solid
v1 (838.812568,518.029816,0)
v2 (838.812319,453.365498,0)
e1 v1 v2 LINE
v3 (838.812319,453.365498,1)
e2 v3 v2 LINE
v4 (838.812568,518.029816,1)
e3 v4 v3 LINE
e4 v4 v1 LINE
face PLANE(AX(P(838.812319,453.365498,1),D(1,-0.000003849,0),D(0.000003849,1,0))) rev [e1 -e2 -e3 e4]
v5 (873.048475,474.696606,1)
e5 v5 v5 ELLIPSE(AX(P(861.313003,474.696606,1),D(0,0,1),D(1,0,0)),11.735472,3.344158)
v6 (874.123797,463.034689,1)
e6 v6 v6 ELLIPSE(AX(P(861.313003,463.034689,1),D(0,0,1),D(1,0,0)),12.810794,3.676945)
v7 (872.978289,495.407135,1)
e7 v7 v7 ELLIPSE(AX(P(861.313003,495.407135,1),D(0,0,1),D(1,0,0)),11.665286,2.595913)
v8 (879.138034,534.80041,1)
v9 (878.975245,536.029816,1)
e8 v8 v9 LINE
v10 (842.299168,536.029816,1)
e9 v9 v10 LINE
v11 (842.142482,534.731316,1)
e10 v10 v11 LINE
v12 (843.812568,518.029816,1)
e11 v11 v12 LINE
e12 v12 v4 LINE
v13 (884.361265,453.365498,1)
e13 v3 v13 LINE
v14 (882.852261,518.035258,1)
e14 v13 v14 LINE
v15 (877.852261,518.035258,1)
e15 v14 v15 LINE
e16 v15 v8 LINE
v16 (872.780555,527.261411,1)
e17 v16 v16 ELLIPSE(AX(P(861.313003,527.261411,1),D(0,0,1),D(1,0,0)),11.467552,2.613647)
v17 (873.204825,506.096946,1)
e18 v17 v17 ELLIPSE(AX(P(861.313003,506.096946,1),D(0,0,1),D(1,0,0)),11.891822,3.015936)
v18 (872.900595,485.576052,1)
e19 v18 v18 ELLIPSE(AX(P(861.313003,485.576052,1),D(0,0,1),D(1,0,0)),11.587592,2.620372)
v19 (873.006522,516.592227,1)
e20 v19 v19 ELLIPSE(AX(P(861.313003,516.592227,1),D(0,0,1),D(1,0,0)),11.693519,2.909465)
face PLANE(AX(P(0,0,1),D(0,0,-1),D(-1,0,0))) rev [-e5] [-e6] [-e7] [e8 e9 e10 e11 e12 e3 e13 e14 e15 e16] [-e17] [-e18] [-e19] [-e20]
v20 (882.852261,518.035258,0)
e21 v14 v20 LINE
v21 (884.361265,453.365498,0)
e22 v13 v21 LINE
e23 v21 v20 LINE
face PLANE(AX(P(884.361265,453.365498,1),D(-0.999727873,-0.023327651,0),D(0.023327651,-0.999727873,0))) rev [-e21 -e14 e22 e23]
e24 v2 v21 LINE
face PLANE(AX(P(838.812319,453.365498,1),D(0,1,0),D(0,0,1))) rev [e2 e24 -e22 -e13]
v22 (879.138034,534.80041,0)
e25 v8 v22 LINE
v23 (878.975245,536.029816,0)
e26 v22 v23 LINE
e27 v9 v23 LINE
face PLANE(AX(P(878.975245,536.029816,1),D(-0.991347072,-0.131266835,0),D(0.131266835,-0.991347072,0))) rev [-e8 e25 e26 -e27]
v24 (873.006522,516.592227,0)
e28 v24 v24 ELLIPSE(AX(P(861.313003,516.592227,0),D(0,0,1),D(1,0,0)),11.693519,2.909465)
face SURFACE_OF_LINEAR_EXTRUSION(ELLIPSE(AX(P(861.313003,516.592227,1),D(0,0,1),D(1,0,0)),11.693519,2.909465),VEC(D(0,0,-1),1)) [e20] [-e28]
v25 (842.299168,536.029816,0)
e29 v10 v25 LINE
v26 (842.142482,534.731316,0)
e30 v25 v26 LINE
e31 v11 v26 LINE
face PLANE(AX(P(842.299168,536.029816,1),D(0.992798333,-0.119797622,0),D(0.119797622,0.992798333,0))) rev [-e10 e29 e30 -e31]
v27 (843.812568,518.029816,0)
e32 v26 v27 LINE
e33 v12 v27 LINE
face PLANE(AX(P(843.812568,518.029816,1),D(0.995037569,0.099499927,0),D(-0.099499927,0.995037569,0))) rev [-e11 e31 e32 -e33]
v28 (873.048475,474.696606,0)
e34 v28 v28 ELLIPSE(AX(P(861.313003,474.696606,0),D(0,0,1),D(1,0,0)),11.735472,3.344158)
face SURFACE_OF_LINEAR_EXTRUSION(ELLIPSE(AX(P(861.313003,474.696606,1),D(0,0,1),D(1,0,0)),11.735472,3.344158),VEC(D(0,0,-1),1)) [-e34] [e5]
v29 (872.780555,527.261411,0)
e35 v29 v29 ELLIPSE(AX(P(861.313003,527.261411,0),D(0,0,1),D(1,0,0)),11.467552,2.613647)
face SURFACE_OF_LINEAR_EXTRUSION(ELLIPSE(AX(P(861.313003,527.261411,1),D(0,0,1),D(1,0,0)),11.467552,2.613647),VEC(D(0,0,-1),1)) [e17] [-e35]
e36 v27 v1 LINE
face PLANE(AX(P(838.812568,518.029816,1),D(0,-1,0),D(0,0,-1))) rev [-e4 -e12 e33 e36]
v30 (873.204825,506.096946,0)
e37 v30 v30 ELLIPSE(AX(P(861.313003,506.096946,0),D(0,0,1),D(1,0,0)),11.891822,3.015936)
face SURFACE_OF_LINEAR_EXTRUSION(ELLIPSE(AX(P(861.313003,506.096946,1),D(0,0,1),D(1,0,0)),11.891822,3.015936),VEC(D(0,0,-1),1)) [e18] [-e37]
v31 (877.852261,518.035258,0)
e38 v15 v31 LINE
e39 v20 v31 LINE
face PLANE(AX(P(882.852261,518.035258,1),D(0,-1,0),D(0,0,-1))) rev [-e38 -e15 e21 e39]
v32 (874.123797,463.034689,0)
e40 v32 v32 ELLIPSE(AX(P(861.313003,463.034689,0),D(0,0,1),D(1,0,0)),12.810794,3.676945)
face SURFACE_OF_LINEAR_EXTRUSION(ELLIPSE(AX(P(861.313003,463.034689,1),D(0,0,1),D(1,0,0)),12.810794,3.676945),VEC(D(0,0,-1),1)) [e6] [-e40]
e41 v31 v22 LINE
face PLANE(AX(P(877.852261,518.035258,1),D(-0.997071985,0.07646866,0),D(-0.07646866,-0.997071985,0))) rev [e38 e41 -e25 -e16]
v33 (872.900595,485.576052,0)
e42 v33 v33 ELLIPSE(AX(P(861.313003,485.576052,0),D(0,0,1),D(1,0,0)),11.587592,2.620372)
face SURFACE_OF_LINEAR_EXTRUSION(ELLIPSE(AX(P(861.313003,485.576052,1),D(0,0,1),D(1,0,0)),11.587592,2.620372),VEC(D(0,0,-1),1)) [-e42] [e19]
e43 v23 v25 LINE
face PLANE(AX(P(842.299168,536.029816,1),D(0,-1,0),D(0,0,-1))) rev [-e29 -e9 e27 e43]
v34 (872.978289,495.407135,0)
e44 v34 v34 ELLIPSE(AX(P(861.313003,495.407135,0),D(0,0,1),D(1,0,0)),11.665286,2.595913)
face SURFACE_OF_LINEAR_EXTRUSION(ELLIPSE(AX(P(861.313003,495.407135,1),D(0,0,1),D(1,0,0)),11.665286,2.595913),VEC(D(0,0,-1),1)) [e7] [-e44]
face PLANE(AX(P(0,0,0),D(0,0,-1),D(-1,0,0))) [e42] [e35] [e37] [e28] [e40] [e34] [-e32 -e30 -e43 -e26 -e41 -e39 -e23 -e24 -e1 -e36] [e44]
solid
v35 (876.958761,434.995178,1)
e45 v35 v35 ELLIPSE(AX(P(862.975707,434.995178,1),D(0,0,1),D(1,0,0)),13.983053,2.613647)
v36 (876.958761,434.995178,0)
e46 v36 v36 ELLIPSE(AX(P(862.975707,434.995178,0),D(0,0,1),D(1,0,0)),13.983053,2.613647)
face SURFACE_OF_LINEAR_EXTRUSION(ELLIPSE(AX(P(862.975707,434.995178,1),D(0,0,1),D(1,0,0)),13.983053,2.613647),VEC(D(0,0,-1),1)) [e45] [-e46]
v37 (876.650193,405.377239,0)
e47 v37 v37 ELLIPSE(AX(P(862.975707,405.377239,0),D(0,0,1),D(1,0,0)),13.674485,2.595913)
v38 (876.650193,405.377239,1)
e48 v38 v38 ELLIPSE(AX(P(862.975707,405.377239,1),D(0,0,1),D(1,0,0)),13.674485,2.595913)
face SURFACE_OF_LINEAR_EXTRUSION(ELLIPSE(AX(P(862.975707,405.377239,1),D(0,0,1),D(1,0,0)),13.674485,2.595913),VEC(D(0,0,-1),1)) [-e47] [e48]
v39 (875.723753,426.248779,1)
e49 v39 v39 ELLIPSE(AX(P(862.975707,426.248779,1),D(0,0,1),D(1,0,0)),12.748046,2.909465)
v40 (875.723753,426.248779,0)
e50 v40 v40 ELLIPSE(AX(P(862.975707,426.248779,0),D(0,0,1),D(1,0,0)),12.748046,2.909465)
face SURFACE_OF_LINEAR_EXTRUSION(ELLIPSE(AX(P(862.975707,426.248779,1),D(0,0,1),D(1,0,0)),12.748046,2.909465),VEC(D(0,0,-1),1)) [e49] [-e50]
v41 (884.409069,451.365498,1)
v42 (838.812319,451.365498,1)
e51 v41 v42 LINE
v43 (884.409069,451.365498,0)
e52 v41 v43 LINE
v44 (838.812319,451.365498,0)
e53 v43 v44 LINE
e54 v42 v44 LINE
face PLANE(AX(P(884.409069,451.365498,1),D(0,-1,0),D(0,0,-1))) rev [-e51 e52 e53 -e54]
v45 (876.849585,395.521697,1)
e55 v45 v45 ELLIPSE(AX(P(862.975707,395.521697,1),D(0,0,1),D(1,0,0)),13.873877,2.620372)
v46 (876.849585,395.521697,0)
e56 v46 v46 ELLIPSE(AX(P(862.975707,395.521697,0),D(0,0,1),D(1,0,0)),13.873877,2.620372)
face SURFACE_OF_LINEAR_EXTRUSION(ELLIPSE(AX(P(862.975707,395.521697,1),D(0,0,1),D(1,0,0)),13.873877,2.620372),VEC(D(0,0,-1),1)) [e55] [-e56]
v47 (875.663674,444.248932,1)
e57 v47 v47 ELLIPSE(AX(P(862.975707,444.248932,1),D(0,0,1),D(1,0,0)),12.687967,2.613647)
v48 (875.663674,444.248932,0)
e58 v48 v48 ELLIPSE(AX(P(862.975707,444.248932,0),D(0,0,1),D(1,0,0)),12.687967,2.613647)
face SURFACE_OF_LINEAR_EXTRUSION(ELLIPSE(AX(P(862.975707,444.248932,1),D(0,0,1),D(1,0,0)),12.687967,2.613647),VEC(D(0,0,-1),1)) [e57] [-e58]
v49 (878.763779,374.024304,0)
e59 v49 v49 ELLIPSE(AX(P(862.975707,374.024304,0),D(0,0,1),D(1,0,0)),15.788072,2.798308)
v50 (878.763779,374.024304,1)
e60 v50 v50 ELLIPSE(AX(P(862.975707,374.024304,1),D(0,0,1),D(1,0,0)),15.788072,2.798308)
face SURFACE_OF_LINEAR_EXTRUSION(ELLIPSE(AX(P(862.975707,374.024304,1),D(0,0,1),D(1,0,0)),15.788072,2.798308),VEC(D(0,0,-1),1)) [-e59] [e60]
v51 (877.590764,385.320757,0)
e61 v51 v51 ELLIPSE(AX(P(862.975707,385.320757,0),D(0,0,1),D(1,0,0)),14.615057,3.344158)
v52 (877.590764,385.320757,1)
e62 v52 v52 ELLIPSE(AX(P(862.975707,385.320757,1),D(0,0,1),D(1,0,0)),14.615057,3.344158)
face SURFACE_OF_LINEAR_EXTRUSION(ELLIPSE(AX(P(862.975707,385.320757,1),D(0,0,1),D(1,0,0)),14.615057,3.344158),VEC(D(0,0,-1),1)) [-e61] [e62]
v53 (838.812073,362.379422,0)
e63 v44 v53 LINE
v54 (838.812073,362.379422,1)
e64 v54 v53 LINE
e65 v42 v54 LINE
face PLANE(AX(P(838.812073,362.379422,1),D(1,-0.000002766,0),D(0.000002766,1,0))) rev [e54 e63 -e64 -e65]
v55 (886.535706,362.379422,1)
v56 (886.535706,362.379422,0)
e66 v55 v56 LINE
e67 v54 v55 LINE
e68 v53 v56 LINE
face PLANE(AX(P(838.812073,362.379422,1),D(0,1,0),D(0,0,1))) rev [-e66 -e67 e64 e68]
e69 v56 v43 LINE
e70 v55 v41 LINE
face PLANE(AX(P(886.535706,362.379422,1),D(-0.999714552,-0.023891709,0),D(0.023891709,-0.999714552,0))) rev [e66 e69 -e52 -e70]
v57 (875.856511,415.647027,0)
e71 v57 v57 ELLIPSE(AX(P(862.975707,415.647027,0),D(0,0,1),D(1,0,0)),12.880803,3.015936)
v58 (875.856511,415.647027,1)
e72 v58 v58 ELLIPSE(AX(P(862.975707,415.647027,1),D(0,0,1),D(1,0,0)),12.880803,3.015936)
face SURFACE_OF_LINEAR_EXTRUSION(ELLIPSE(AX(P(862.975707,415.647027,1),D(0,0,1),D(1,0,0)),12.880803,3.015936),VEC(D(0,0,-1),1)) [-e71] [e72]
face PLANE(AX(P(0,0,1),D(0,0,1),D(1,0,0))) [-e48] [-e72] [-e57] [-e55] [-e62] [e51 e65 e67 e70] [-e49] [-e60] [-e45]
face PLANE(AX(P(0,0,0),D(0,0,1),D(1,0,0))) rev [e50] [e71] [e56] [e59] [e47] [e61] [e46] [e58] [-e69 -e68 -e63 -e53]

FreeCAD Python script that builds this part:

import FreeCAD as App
import Part
import Sketcher

V = App.Vector
Q = App.Units.Quantity

doc = App.newDocument("Part")
body = doc.addObject("PartDesign::Body", "Body")

sketch1 = doc.addObject("Sketcher::SketchObject", "Sketch")
body.addObject(sketch1)
sketch1.AttachmentSupport = (doc.XY_Plane, [""])
sketch1.MapMode = "FlatFace"
sketch1.addGeometry(Part.LineSegment(V(838.812319, 453.365498, 0), V(884.361265, 453.365498, 0)), False)
sketch1.addGeometry(Part.LineSegment(V(884.361265, 453.365498, 0), V(882.852261, 518.035258, 0)), False)
sketch1.addGeometry(Part.LineSegment(V(882.852261, 518.035258, 0), V(877.852261, 518.035258, 0)), False)
sketch1.addGeometry(Part.LineSegment(V(877.852261, 518.035258, 0), V(879.138034, 534.80041, 0)), False)
sketch1.addGeometry(Part.LineSegment(V(879.138034, 534.80041, 0), V(878.975245, 536.029816, 0)), False)
sketch1.addGeometry(Part.LineSegment(V(878.975245, 536.029816, 0), V(842.299168, 536.029816, 0)), False)
sketch1.addGeometry(Part.LineSegment(V(842.299168, 536.029816, 0), V(842.142482, 534.731316, 0)), False)
sketch1.addGeometry(Part.LineSegment(V(842.142482, 534.731316, 0), V(843.812568, 518.029816, 0)), False)
sketch1.addGeometry(Part.LineSegment(V(843.812568, 518.029816, 0), V(838.812568, 518.029816, 0)), False)
sketch1.addGeometry(Part.LineSegment(V(838.812568, 518.029816, 0), V(838.812319, 453.365498, 0)), False)
sketch1.addGeometry(Part.Ellipse(V(874.123797, 463.034689, 0), V(861.313003, 466.711634, 0), V(861.313003, 463.034689, 0)), False)
sketch1.addGeometry(Part.Ellipse(V(873.048475, 474.696606, 0), V(861.313003, 478.040765, 0), V(861.313003, 474.696606, 0)), False)
sketch1.addGeometry(Part.Ellipse(V(872.900595, 485.576052, 0), V(861.313003, 488.196424, 0), V(861.313003, 485.576052, 0)), False)
sketch1.addGeometry(Part.Ellipse(V(872.978289, 495.407135, 0), V(861.313003, 498.003049, 0), V(861.313003, 495.407135, 0)), False)
sketch1.addGeometry(Part.Ellipse(V(873.204825, 506.096946, 0), V(861.313003, 509.112881, 0), V(861.313003, 506.096946, 0)), False)
sketch1.addGeometry(Part.Ellipse(V(873.006522, 516.592227, 0), V(861.313003, 519.501692, 0), V(861.313003, 516.592227, 0)), False)
sketch1.addGeometry(Part.Ellipse(V(872.780555, 527.261411, 0), V(861.313003, 529.875058, 0), V(861.313003, 527.261411, 0)), False)
sketch1.addConstraint(Sketcher.Constraint("Block", 10))
sketch1.addConstraint(Sketcher.Constraint("Block", 11))
sketch1.addConstraint(Sketcher.Constraint("Block", 12))
sketch1.addConstraint(Sketcher.Constraint("Block", 13))
sketch1.addConstraint(Sketcher.Constraint("Block", 14))
sketch1.addConstraint(Sketcher.Constraint("Block", 15))
sketch1.addConstraint(Sketcher.Constraint("Block", 16))
sketch1.addConstraint(Sketcher.Constraint("Coincident", 0, 2, 1, 1))
sketch1.addConstraint(Sketcher.Constraint("Coincident", 1, 2, 2, 1))
sketch1.addConstraint(Sketcher.Constraint("Coincident", 2, 2, 3, 1))
sketch1.addConstraint(Sketcher.Constraint("Coincident", 3, 2, 4, 1))
sketch1.addConstraint(Sketcher.Constraint("Coincident", 4, 2, 5, 1))
sketch1.addConstraint(Sketcher.Constraint("Coincident", 5, 2, 6, 1))
sketch1.addConstraint(Sketcher.Constraint("Coincident", 6, 2, 7, 1))
sketch1.addConstraint(Sketcher.Constraint("Coincident", 7, 2, 8, 1))
sketch1.addConstraint(Sketcher.Constraint("Coincident", 8, 2, 9, 1))
sketch1.addConstraint(Sketcher.Constraint("Coincident", 9, 2, 0, 1))
sketch1.addConstraint(Sketcher.Constraint("Horizontal", 0))
sketch1.addConstraint(Sketcher.Constraint("Horizontal", 2))
sketch1.addConstraint(Sketcher.Constraint("Horizontal", 5))
sketch1.addConstraint(Sketcher.Constraint("Horizontal", 8))
sketch1.addConstraint(Sketcher.Constraint("Equal", 2, 8))
sketch1.addConstraint(Sketcher.Constraint("DistanceX", 2, 2, 2, 1, Q("5 mm")))
sketch1.addConstraint(Sketcher.Constraint("DistanceY", 7, 2, 5, 2, Q("18 mm")))
sketch1.addConstraint(Sketcher.Constraint("DistanceY", 6, 2, 5, 2, Q("1.2985 mm")))
sketch1.addConstraint(Sketcher.Constraint("DistanceX", 5, 2, 7, 2, Q("1.5134 mm")))
sketch1.addConstraint(Sketcher.Constraint("Distance", 6, Q("1.307919 mm")))
sketch1.addConstraint(Sketcher.Constraint("DistanceX", 0, 1, 0, 2, Q("45.548946 mm")))
sketch1.addConstraint(Sketcher.Constraint("DistanceX", 5, 2, 5, 1, Q("36.676078 mm")))
sketch1.addConstraint(Sketcher.Constraint("DistanceX", -1, 1, 1, 2, Q("882.852261 mm")))
sketch1.addConstraint(Sketcher.Constraint("DistanceY", -1, 1, 1, 2, Q("518.035258 mm")))
sketch1.addConstraint(Sketcher.Constraint("DistanceY", -1, 1, 3, 2, Q("534.80041 mm")))
sketch1.addConstraint(Sketcher.Constraint("DistanceX", -1, 1, 9, 2, Q("838.812319 mm")))
sketch1.addConstraint(Sketcher.Constraint("DistanceY", 0, 2, 1, 2, Q("64.66976 mm")))
sketch1.addConstraint(Sketcher.Constraint("DistanceX", 3, 2, 0, 2, Q("5.223231 mm")))
sketch1.addConstraint(Sketcher.Constraint("DistanceX", 4, 2, 3, 2, Q("0.162789 mm")))
sketch1.addConstraint(Sketcher.Constraint("Distance", 4, Q("1.240137 mm")))
pad1 = doc.addObject("PartDesign::Pad", "Pad")
body.addObject(pad1)
pad1.Profile = sketch1
pad1.Length = 1
body2 = doc.addObject("PartDesign::Body", "Body001")

sketch2 = doc.addObject("Sketcher::SketchObject", "Sketch001")
body2.addObject(sketch2)
sketch2.AttachmentSupport = (doc.getObject("XY_Plane001"), [""])
sketch2.MapMode = "FlatFace"
sketch2.addGeometry(Part.LineSegment(V(838.812319, 451.365498, 0), V(838.812073, 362.379422, 0)), False)
sketch2.addGeometry(Part.LineSegment(V(838.812073, 362.379422, 0), V(886.535706, 362.379422, 0)), False)
sketch2.addGeometry(Part.LineSegment(V(886.535706, 362.379422, 0), V(884.409069, 451.365498, 0)), False)
sketch2.addGeometry(Part.LineSegment(V(884.409069, 451.365498, 0), V(838.812319, 451.365498, 0)), False)
sketch2.addGeometry(Part.Ellipse(V(878.763779, 374.024304, 0), V(862.975707, 376.822613, 0), V(862.975707, 374.024304, 0)), False)
sketch2.addGeometry(Part.Ellipse(V(877.590764, 385.320757, 0), V(862.975707, 388.664915, 0), V(862.975707, 385.320757, 0)), False)
sketch2.addGeometry(Part.Ellipse(V(876.849585, 395.521697, 0), V(862.975707, 398.142069, 0), V(862.975707, 395.521697, 0)), False)
sketch2.addGeometry(Part.Ellipse(V(876.650193, 405.377239, 0), V(862.975707, 407.973153, 0), V(862.975707, 405.377239, 0)), False)
sketch2.addGeometry(Part.Ellipse(V(875.856511, 415.647027, 0), V(862.975707, 418.662963, 0), V(862.975707, 415.647027, 0)), False)
sketch2.addGeometry(Part.Ellipse(V(875.723753, 426.248779, 0), V(862.975707, 429.158244, 0), V(862.975707, 426.248779, 0)), False)
sketch2.addGeometry(Part.Ellipse(V(876.958761, 434.995178, 0), V(862.975707, 437.608825, 0), V(862.975707, 434.995178, 0)), False)
sketch2.addGeometry(Part.Ellipse(V(875.663674, 444.248932, 0), V(862.975707, 446.862579, 0), V(862.975707, 444.248932, 0)), False)
sketch2.addConstraint(Sketcher.Constraint("Block", 4))
sketch2.addConstraint(Sketcher.Constraint("Block", 5))
sketch2.addConstraint(Sketcher.Constraint("Block", 6))
sketch2.addConstraint(Sketcher.Constraint("Block", 7))
sketch2.addConstraint(Sketcher.Constraint("Block", 8))
sketch2.addConstraint(Sketcher.Constraint("Block", 9))
sketch2.addConstraint(Sketcher.Constraint("Block", 10))
sketch2.addConstraint(Sketcher.Constraint("Block", 11))
sketch2.addConstraint(Sketcher.Constraint("Coincident", 0, 2, 1, 1))
sketch2.addConstraint(Sketcher.Constraint("Coincident", 1, 2, 2, 1))
sketch2.addConstraint(Sketcher.Constraint("Coincident", 2, 2, 3, 1))
sketch2.addConstraint(Sketcher.Constraint("Coincident", 3, 2, 0, 1))
sketch2.addConstraint(Sketcher.Constraint("Horizontal", 1))
sketch2.addConstraint(Sketcher.Constraint("Horizontal", 3))
sketch2.addConstraint(Sketcher.Constraint("DistanceX", 3, 2, 3, 1, Q("45.59675 mm")))
sketch2.addConstraint(Sketcher.Constraint("DistanceX", 1, 1, 1, 2, Q("47.723633 mm")))
sketch2.addConstraint(Sketcher.Constraint("DistanceY", -1, 1, 0, 2, Q("362.379422 mm")))
sketch2.addConstraint(Sketcher.Constraint("DistanceX", -1, 1, 2, 2, Q("884.409069 mm")))
sketch2.addConstraint(Sketcher.Constraint("Distance", 0, Q("88.986076 mm")))
sketch2.addConstraint(Sketcher.Constraint("Distance", 2, Q("89.011484 mm")))
pad2 = doc.addObject("PartDesign::Pad", "Pad001")
body2.addObject(pad2)
pad2.Profile = sketch2
pad2.Length = 1

doc.recompute()
